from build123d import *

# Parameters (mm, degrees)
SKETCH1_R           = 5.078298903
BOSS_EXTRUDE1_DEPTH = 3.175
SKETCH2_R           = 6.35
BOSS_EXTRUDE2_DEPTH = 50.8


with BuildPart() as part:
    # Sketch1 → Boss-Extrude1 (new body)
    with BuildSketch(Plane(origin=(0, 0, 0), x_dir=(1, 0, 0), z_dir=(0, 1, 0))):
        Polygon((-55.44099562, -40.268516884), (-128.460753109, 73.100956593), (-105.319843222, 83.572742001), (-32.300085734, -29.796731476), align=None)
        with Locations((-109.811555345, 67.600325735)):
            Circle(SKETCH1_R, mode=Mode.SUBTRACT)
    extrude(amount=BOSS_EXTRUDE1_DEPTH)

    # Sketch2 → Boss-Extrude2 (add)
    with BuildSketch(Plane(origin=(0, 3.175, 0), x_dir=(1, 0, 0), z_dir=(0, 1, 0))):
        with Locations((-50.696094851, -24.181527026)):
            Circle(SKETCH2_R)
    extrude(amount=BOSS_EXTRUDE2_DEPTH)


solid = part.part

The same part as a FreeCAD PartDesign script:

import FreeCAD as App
import Part
import Sketcher
Q = App.Units.Quantity


def add_polygon(sketch, points):
    """Adds a closed chain of lines whose ends are joined by coincident constraints."""
    first, n = sketch.GeometryCount, len(points)
    for a, b in zip(points, points[1:] + points[:1]):
        sketch.addGeometry(Part.LineSegment(App.Vector(*a, 0), App.Vector(*b, 0)), False)
    for i in range(n):
        sketch.addConstraint(Sketcher.Constraint("Coincident", first + i, 2, first + (i + 1) % n, 1))

doc = App.newDocument("Part")
body = doc.addObject("PartDesign::Body", "Body")

# Sketch on XZ plane
sketch1 = body.newObject("Sketcher::SketchObject", "Sketch")
sketch1.AttachmentSupport = (doc.getObject("XZ_Plane"), [""])
sketch1.MapMode = "FlatFace"
add_polygon(sketch1, [(-128, -73), (-55, 40), (-32, 30), (-105, -84)])  # lines 0-3
sketch1.addGeometry(Part.Circle(App.Vector(-110, -68, 0), App.Vector(0, 0, 1), 5), False)  # 4
sketch1.addConstraint([
    Sketcher.Constraint("Parallel", 0, 2),
    Sketcher.Constraint("Parallel", 1, 3),
    Sketcher.Constraint("Distance", 1, Q("1 in")),
    Sketcher.Constraint("Diameter", 4, Q("10.156598 mm")),
    Sketcher.Constraint("Distance", 0, Q("134.85 mm")),
    Sketcher.Constraint("DistanceY", -1, 1, 1, 2, Q("29.796731 mm")),
    Sketcher.Constraint("DistanceX", 4, 3, 0, 2, Q("54.37056 mm")),
    Sketcher.Constraint("DistanceX", 0, 2, 1, 2, Q("23.14091 mm")),
    Sketcher.Constraint("DistanceY", 2, 2, 0, 2, Q("123.841259 mm")),
    Sketcher.Constraint("DistanceY", 3, 2, 4, 3, Q("5.500631 mm")),
    Sketcher.Constraint("DistanceX", 4, 3, -1, 1, Q("109.811555 mm")),
])
pad1 = body.newObject("PartDesign::Pad", "Pad")
pad1.Profile = sketch1
pad1.Length = Q("0.125 in")
pad1.Reversed = True

# Sketch on XZ plane
sketch2 = body.newObject("Sketcher::SketchObject", "Sketch001")
sketch2.AttachmentSupport = (doc.getObject("XZ_Plane"), [""])
sketch2.MapMode = "FlatFace"
sketch2.AttachmentOffset = App.Placement(App.Vector(0, 0, -0.125 * 25.4), App.Rotation())
sketch2.addGeometry(Part.Circle(App.Vector(-51, 24, 0), App.Vector(0, 0, 1), 6), False)
sketch2.addConstraint([
    Sketcher.Constraint("Diameter", 0, Q("0.5 in")),
    Sketcher.Constraint("DistanceX", 0, 3, -1, 1, Q("50.696095 mm")),
    Sketcher.Constraint("DistanceY", -1, 1, 0, 3, Q("24.181527 mm")),
])
pad2 = body.newObject("PartDesign::Pad", "Pad001")
pad2.Profile = sketch2
pad2.Length = Q("2 in")
pad2.Reversed = True

doc.recompute()
